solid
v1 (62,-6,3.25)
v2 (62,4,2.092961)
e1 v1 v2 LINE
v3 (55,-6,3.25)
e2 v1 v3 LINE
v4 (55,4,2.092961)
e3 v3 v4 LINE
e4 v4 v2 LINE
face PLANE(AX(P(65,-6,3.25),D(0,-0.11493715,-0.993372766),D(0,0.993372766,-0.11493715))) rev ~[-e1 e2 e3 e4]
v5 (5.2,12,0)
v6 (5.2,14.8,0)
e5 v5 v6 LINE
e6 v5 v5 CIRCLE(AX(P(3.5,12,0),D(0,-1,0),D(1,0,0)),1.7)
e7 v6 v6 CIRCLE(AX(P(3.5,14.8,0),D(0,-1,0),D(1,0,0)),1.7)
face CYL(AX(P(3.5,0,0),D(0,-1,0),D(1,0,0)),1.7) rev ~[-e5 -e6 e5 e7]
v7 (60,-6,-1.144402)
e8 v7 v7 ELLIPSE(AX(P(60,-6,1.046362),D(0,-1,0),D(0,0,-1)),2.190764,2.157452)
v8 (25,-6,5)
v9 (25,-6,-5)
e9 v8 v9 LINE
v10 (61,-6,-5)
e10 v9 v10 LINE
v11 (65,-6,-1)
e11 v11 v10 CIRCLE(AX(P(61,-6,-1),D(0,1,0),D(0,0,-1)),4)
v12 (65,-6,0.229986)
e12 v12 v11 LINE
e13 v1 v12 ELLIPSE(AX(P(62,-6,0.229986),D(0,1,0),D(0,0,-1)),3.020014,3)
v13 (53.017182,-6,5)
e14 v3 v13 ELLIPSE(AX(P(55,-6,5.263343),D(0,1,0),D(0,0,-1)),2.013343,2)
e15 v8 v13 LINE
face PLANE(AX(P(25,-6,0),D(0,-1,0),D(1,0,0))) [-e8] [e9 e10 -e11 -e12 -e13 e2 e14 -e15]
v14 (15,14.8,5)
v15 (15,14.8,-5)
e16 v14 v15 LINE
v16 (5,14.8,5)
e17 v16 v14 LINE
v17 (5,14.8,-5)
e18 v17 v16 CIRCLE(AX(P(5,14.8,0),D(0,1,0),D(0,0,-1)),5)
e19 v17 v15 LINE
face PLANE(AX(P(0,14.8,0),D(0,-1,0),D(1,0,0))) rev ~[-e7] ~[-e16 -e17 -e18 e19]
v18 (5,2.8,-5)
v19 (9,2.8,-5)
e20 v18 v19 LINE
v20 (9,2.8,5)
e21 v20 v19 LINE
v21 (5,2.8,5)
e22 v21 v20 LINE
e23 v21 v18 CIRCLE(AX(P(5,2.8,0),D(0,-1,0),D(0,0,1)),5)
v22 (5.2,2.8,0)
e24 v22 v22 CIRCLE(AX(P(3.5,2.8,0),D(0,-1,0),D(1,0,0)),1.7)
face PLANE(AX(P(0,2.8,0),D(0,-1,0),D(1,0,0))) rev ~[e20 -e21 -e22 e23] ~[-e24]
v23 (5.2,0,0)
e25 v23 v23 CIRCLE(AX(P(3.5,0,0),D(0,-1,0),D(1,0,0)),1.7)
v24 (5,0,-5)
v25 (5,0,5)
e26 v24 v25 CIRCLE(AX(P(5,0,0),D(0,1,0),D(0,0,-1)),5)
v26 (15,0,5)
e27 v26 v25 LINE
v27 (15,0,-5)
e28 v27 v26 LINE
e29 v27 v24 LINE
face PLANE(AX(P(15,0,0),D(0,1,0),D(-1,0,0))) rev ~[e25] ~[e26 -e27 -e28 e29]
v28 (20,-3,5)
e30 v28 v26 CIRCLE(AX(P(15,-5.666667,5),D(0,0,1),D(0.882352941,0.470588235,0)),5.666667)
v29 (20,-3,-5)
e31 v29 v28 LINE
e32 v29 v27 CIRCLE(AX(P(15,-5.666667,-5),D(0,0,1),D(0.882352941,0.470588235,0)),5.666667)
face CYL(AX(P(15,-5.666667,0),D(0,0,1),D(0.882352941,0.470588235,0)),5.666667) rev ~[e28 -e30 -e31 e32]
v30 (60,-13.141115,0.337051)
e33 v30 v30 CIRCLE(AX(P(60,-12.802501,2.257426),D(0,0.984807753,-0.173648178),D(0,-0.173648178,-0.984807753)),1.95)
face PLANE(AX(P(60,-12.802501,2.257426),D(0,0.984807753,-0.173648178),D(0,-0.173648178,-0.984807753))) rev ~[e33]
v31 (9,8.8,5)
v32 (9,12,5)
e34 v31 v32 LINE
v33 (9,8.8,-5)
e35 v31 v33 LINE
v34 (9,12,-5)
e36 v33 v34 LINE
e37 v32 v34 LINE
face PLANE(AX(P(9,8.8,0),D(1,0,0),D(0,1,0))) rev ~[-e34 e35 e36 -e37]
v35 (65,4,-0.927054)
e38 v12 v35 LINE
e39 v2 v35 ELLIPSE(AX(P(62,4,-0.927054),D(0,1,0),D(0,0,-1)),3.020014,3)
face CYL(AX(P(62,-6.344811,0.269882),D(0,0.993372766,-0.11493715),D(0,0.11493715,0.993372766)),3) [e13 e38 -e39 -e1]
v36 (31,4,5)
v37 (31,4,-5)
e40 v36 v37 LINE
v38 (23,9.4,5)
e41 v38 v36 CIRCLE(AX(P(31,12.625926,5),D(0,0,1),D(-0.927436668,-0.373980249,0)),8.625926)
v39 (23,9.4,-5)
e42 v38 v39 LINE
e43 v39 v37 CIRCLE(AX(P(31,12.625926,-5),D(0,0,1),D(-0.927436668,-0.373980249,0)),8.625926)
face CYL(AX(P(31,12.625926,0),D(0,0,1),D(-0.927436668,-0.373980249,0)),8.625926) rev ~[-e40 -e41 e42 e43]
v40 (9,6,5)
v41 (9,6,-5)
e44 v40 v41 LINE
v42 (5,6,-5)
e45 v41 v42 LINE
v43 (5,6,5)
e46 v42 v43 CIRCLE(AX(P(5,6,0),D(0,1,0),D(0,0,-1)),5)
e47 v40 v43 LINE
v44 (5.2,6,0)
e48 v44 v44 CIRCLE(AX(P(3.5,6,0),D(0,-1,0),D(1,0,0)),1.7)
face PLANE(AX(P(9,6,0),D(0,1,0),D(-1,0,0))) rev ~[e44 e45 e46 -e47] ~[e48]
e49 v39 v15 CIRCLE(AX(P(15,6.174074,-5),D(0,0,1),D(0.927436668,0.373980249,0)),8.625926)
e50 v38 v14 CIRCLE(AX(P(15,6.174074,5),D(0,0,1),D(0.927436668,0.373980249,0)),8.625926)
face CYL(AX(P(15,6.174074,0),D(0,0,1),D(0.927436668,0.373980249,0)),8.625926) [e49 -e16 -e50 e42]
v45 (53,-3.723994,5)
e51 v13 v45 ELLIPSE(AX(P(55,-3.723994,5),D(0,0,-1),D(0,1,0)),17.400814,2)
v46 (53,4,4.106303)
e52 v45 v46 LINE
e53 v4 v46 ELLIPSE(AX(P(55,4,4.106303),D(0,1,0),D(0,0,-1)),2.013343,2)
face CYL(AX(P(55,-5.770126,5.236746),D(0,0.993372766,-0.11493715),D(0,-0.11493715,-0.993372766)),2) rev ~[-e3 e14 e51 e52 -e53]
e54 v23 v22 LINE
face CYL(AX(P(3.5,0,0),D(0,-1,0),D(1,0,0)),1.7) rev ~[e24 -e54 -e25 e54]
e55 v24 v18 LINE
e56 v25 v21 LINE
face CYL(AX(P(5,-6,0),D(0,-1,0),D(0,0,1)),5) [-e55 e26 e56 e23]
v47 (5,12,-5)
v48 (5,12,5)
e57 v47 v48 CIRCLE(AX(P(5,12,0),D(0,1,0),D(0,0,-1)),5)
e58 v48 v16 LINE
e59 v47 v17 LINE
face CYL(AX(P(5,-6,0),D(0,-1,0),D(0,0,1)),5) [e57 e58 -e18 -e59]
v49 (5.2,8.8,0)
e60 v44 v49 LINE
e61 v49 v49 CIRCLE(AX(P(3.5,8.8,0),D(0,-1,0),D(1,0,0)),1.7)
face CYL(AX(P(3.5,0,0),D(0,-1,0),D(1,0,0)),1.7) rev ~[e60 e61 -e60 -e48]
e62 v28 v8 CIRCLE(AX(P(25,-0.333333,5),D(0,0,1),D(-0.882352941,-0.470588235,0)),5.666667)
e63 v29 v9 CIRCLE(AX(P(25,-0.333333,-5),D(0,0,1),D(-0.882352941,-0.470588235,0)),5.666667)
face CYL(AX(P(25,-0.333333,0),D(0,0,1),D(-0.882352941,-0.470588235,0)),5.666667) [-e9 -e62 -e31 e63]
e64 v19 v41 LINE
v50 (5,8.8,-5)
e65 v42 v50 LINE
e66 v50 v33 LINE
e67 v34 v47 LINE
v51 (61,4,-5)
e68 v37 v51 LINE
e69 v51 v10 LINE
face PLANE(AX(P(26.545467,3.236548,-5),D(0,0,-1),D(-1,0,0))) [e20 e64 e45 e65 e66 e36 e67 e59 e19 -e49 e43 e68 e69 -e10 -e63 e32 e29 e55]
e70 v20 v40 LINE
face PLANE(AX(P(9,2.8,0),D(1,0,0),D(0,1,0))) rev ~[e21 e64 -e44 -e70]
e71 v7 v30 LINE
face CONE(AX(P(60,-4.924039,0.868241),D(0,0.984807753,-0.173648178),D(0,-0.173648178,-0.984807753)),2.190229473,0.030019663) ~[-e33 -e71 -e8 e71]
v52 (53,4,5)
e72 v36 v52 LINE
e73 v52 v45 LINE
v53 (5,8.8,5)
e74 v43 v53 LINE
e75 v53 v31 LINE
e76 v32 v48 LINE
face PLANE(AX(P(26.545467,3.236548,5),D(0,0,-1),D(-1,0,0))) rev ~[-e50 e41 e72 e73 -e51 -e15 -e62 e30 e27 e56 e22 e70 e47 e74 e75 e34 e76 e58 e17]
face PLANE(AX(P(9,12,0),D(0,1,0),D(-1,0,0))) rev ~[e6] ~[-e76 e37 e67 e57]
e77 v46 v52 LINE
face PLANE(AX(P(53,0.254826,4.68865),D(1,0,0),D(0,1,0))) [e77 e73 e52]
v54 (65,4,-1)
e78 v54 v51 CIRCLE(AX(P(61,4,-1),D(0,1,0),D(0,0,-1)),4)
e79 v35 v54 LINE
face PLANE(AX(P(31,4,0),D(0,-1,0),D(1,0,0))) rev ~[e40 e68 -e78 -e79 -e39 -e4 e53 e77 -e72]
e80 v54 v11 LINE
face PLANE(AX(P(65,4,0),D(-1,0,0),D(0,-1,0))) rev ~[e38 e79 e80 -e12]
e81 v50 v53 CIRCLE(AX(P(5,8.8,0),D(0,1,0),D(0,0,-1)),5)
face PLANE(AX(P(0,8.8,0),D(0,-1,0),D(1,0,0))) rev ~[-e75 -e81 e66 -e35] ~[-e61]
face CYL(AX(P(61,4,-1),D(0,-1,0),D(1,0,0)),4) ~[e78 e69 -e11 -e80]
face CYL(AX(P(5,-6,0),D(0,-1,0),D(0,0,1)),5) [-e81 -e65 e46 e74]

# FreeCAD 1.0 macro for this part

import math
import FreeCAD as App
import Part
import Sketcher
from FreeCAD import Vector
Q = App.Units.Quantity


def edges_at(feature, points):
    """Names of the edges that pass closest to the given points."""
    edges = feature.Shape.Edges
    near = lambda p: min(range(len(edges)), key=lambda i: edges[i].distToShape(Part.Vertex(*p))[0])
    return sorted({f"Edge{near(p) + 1}" for p in points})

doc = App.newDocument("Part")
body = doc.addObject("PartDesign::Body", "Body")

# Sketch on XY plane
sketch1 = body.newObject("Sketcher::SketchObject", "Sketch")
sketch1.AttachmentSupport = (doc.getObject("XY_Plane"), [""])
sketch1.MapMode = "FlatFace"
sketch1.addGeometry([
    Part.LineSegment(Vector(0, 2.8, 0), Vector(0, 0, 0)),  # 0
    Part.LineSegment(Vector(0, 0, 0), Vector(15, 0, 0)),  # 1
    Part.ArcOfCircle(Part.Circle(Vector(15, -5.7, 0), Vector(0, 0, 1), 5.7), math.radians(28), math.radians(90)),  # 2
    Part.ArcOfCircle(Part.Circle(Vector(25, -0.3, 0), Vector(0, 0, 1), 5.7), math.radians(-152), math.radians(-90)),  # 3
    Part.LineSegment(Vector(25, -6, 0), Vector(65, -6, 0)),  # 4
    Part.LineSegment(Vector(65, -6, 0), Vector(65, 4, 0)),  # 5
    Part.LineSegment(Vector(65, 4, 0), Vector(31, 4, 0)),  # 6
    Part.ArcOfCircle(Part.Circle(Vector(31, 12.6, 0), Vector(0, 0, 1), 8.6), math.radians(-158), math.radians(-90)),  # 7
    Part.ArcOfCircle(Part.Circle(Vector(15, 6.2, 0), Vector(0, 0, 1), 8.6), math.radians(22), math.radians(90)),  # 8
    Part.LineSegment(Vector(15, 14.8, 0), Vector(0, 14.8, 0)),  # 9
    Part.LineSegment(Vector(0, 14.8, 0), Vector(0, 12, 0)),  # 10
    Part.LineSegment(Vector(0, 12, 0), Vector(9, 12, 0)),  # 11
    Part.LineSegment(Vector(9, 12, 0), Vector(9, 8.8, 0)),  # 12
    Part.LineSegment(Vector(9, 8.8, 0), Vector(0, 8.8, 0)),  # 13
    Part.LineSegment(Vector(0, 8.8, 0), Vector(0, 6, 0)),  # 14
    Part.LineSegment(Vector(0, 6, 0), Vector(9, 6, 0)),  # 15
    Part.LineSegment(Vector(9, 6, 0), Vector(9, 2.8, 0)),  # 16
    Part.LineSegment(Vector(9, 2.8, 0), Vector(0, 2.8, 0)),  # 17
], False)
sketch1.addConstraint([
    Sketcher.Constraint("Coincident", 0, 2, 1, 1),
    Sketcher.Constraint("Tangent", 1, 2, 2, 2),
    Sketcher.Constraint("Tangent", 2, 1, 3, 1),
    Sketcher.Constraint("Tangent", 3, 2, 4, 1),
    Sketcher.Constraint("Coincident", 4, 2, 5, 1),
    Sketcher.Constraint("Coincident", 5, 2, 6, 1),
    Sketcher.Constraint("Tangent", 6, 2, 7, 2),
    Sketcher.Constraint("Tangent", 7, 1, 8, 1),
    Sketcher.Constraint("Tangent", 8, 2, 9, 1),
    Sketcher.Constraint("Coincident", 9, 2, 10, 1),
    Sketcher.Constraint("Coincident", 10, 2, 11, 1),
    Sketcher.Constraint("Coincident", 11, 2, 12, 1),
    Sketcher.Constraint("Coincident", 12, 2, 13, 1),
    Sketcher.Constraint("Coincident", 13, 2, 14, 1),
    Sketcher.Constraint("Coincident", 14, 2, 15, 1),
    Sketcher.Constraint("Coincident", 15, 2, 16, 1),
    Sketcher.Constraint("Coincident", 16, 2, 17, 1),
    Sketcher.Constraint("Coincident", 17, 2, 0, 1),
    Sketcher.Constraint("Vertical", 0),
    Sketcher.Constraint("Horizontal", 1),
    Sketcher.Constraint("Horizontal", 4),
    Sketcher.Constraint("Vertical", 5),
    Sketcher.Constraint("Horizontal", 6),
    Sketcher.Constraint("Horizontal", 9),
    Sketcher.Constraint("Vertical", 10),
    Sketcher.Constraint("Horizontal", 11),
    Sketcher.Constraint("Vertical", 12),
    Sketcher.Constraint("Horizontal", 13),
    Sketcher.Constraint("Vertical", 14),
    Sketcher.Constraint("Horizontal", 15),
    Sketcher.Constraint("Vertical", 16),
    Sketcher.Constraint("Horizontal", 17),
    Sketcher.Constraint("Coincident", 0, 2, -1, 1),
    Sketcher.Constraint("Equal", 2, 3),
    Sketcher.Constraint("Equal", 7, 8),
    Sketcher.Constraint("PointOnObject", 9, 2, -2),
    Sketcher.Constraint("PointOnObject", 13, 2, -2),
    Sketcher.Constraint("Vertical", 2, 3, 8, 3),
    Sketcher.Constraint("Vertical", 12, 2, 15, 2),
    Sketcher.Constraint("Equal", 0, 10),
    Sketcher.Constraint("Equal", 10, 14),
    Sketcher.Constraint("Equal", 12, 16),
    Sketcher.Constraint("DistanceX", 1, 1, 1, 2, Q("15 mm")),
    Sketcher.Constraint("DistanceX", 4, 1, 4, 2, Q("40 mm")),
    Sketcher.Constraint("DistanceX", 6, 2, 6, 1, Q("34 mm")),
    Sketcher.Constraint("DistanceX", 11, 1, 11, 2, Q("9 mm")),
    Sketcher.Constraint("DistanceY", 5, 1, 5, 2, Q("10 mm")),
    Sketcher.Constraint("DistanceY", 0, 2, 0, 1, Q("2.8 mm")),
    Sketcher.Constraint("DistanceY", 12, 2, 12, 1, Q("3.2 mm")),
    Sketcher.Constraint("DistanceX", -1, 1, 3, 3, Q("25 mm")),
    Sketcher.Constraint("DistanceY", 2, 1, -1, 1, Q("3 mm")),
])
pad1 = body.newObject("PartDesign::Pad", "Pad")
pad1.Profile = sketch1
pad1.Length = 10
pad1.Midplane = True

# Sketch on XZ plane
sketch2 = body.newObject("Sketcher::SketchObject", "Sketch001")
sketch2.AttachmentSupport = (doc.getObject("XZ_Plane"), [""])
sketch2.MapMode = "FlatFace"
sketch2.AttachmentOffset = App.Placement(Vector(0, 0, 6), App.Rotation())
sketch2.addGeometry([
    Part.ArcOfCircle(Part.Circle(Vector(5, 0, 0), Vector(0, 0, 1), 5), math.radians(90), math.radians(270)),  # 0
    Part.LineSegment(Vector(5, 5, 0), Vector(5, 6, 0)),  # 1
    Part.LineSegment(Vector(5, 6, 0), Vector(-1, 6, 0)),  # 2
    Part.LineSegment(Vector(-1, 6, 0), Vector(-1, -6, 0)),  # 3
    Part.LineSegment(Vector(-1, -6, 0), Vector(5, -6, 0)),  # 4
    Part.LineSegment(Vector(5, -6, 0), Vector(5, -5, 0)),  # 5
], False)
sketch2.addConstraint([
    Sketcher.Constraint("Coincident", 0, 1, 1, 1),
    Sketcher.Constraint("Coincident", 1, 2, 2, 1),
    Sketcher.Constraint("Coincident", 2, 2, 3, 1),
    Sketcher.Constraint("Coincident", 3, 2, 4, 1),
    Sketcher.Constraint("Coincident", 4, 2, 5, 1),
    Sketcher.Constraint("Coincident", 5, 2, 0, 2),
    Sketcher.Constraint("Vertical", 1),
    Sketcher.Constraint("Horizontal", 2),
    Sketcher.Constraint("Vertical", 3),
    Sketcher.Constraint("Horizontal", 4),
    Sketcher.Constraint("Vertical", 5),
    Sketcher.Constraint("Symmetric", 1, 2, 4, 2, -1),
    Sketcher.Constraint("PointOnObject", 0, 3, -1),
    Sketcher.Constraint("Radius", 0, Q("5 mm")),
    Sketcher.Constraint("DistanceX", 2, 2, 2, 1, Q("6 mm")),
    Sketcher.Constraint("DistanceY", 1, 1, 1, 2, Q("1 mm")),
    Sketcher.Constraint("DistanceX", -1, 1, 0, 3, Q("5 mm")),
    Sketcher.Constraint("DistanceX", -1, 1, 0, 1, Q("5 mm")),
])
pocket1 = body.newObject("PartDesign::Pocket", "Pocket")
pocket1.Profile = sketch2
pocket1.Type = "ThroughAll"

# Sketch on XZ plane
sketch3 = body.newObject("Sketcher::SketchObject", "Sketch002")
sketch3.AttachmentSupport = (doc.getObject("XZ_Plane"), [""])
sketch3.MapMode = "FlatFace"
sketch3.addGeometry(Part.Circle(Vector(3.5, 0, 0), Vector(0, 0, 1), 1.7), False)
sketch3.addConstraint([
    Sketcher.Constraint("PointOnObject", 0, 3, -1),
    Sketcher.Constraint("Diameter", 0, Q("3.4 mm")),
    Sketcher.Constraint("DistanceX", -1, 1, 0, 3, Q("3.5 mm")),
])
pocket2 = body.newObject("PartDesign::Pocket", "Pocket001")
pocket2.Profile = sketch3
pocket2.Type = "ThroughAll"

# Sketch on YZ plane
sketch4 = body.newObject("Sketcher::SketchObject", "Sketch003")
sketch4.AttachmentSupport = (doc.getObject("YZ_Plane"), [""])
sketch4.MapMode = "FlatFace"
sketch4.AttachmentOffset = App.Placement(Vector(0, 0, 60), App.Rotation())
sketch4.addGeometry([
    Part.LineSegment(Vector(-5.3, -1.3, 0), Vector(-4.9, 0.9, 0)),
    Part.LineSegment(Vector(-4.9, 0.9, 0), Vector(-12.8, 2.3, 0)),
    Part.LineSegment(Vector(-12.8, 2.3, 0), Vector(-13.1, 0.3, 0)),
    Part.LineSegment(Vector(-13.1, 0.3, 0), Vector(-5.3, -1.3, 0)),
], False)
sketch4.addGeometry(Part.LineSegment(Vector(-12.8, 2.3, 0), Vector(-4.9, 0.9, 0)), True)  # axis
sketch4.addConstraint([
    Sketcher.Constraint("Coincident", 0, 2, 1, 1),
    Sketcher.Constraint("Coincident", 1, 2, 2, 1),
    Sketcher.Constraint("Coincident", 2, 2, 3, 1),
    Sketcher.Constraint("Coincident", 3, 2, 0, 1),
    Sketcher.Constraint("Coincident", 4, 1, 1, 2),
    Sketcher.Constraint("Coincident", 4, 2, 0, 2),
    Sketcher.Constraint("Perpendicular", 0, 1),
    Sketcher.Constraint("Perpendicular", 1, 2),
    Sketcher.Constraint("Angle", 0, Q("80 deg")),
    Sketcher.Constraint("Distance", 1, Q("8 mm")),
    Sketcher.Constraint("Angle", 3, Q("-11.72 deg")),
    Sketcher.Constraint("Distance", 2, Q("1.95 mm")),
    Sketcher.Constraint("DistanceX", 1, 2, -1, 1, Q("12.802501 mm")),
    Sketcher.Constraint("DistanceY", -1, 1, 0, 2, Q("0.868241 mm")),
])
revolution = body.newObject("PartDesign::Revolution", "Revolution")
revolution.Profile = sketch4
revolution.ReferenceAxis = (sketch4, ["Axis0"])
revolution.Angle = 360

# Sketch on YZ plane
sketch5 = body.newObject("Sketcher::SketchObject", "Sketch004")
sketch5.AttachmentSupport = (doc.getObject("YZ_Plane"), [""])
sketch5.MapMode = "FlatFace"
sketch5.AttachmentOffset = App.Placement(Vector(0, 0, 65), App.Rotation())
sketch5.addGeometry([
    Part.LineSegment(Vector(-6, 3.2, 0), Vector(6, 1.9, 0)),
    Part.LineSegment(Vector(6, 1.9, 0), Vector(6, 6.9, 0)),
    Part.LineSegment(Vector(6, 6.9, 0), Vector(-6, 6.9, 0)),
    Part.LineSegment(Vector(-6, 6.9, 0), Vector(-6, 3.2, 0)),
], False)
sketch5.addConstraint([
    Sketcher.Constraint("Coincident", 0, 2, 1, 1),
    Sketcher.Constraint("Coincident", 1, 2, 2, 1),
    Sketcher.Constraint("Coincident", 2, 2, 3, 1),
    Sketcher.Constraint("Coincident", 3, 2, 0, 1),
    Sketcher.Constraint("Vertical", 1),
    Sketcher.Constraint("Horizontal", 2),
    Sketcher.Constraint("Vertical", 3),
    Sketcher.Constraint("DistanceX", 2, 2, 2, 1, Q("12 mm")),
    Sketcher.Constraint("DistanceY", 1, 1, 1, 2, Q("5 mm")),
    Sketcher.Constraint("DistanceX", -1, 1, 0, 2, Q("6 mm")),
    Sketcher.Constraint("Angle", 0, Q("-6.6 deg")),
    Sketcher.Constraint("DistanceY", -1, 1, 3, 2, Q("3.25 mm")),
])
pocket3 = body.newObject("PartDesign::Pocket", "Pocket002")
pocket3.Profile = sketch5
pocket3.Length = 12
doc.recompute()

fillet = body.newObject("PartDesign::Fillet", "Fillet")
fillet.Base = (pocket3, edges_at(pocket3, [(65, -1, 2.671)]))
fillet.Radius = 3
doc.recompute()

fillet2 = body.newObject("PartDesign::Fillet", "Fillet001")
fillet2.Base = (fillet, edges_at(fillet, [(53, -1, 2.671)]))
fillet2.Radius = 2
doc.recompute()

fillet3 = body.newObject("PartDesign::Fillet", "Fillet002")
fillet3.Base = (fillet2, edges_at(fillet2, [(65, -1, -5)]))
fillet3.Radius = 4

doc.recompute()
